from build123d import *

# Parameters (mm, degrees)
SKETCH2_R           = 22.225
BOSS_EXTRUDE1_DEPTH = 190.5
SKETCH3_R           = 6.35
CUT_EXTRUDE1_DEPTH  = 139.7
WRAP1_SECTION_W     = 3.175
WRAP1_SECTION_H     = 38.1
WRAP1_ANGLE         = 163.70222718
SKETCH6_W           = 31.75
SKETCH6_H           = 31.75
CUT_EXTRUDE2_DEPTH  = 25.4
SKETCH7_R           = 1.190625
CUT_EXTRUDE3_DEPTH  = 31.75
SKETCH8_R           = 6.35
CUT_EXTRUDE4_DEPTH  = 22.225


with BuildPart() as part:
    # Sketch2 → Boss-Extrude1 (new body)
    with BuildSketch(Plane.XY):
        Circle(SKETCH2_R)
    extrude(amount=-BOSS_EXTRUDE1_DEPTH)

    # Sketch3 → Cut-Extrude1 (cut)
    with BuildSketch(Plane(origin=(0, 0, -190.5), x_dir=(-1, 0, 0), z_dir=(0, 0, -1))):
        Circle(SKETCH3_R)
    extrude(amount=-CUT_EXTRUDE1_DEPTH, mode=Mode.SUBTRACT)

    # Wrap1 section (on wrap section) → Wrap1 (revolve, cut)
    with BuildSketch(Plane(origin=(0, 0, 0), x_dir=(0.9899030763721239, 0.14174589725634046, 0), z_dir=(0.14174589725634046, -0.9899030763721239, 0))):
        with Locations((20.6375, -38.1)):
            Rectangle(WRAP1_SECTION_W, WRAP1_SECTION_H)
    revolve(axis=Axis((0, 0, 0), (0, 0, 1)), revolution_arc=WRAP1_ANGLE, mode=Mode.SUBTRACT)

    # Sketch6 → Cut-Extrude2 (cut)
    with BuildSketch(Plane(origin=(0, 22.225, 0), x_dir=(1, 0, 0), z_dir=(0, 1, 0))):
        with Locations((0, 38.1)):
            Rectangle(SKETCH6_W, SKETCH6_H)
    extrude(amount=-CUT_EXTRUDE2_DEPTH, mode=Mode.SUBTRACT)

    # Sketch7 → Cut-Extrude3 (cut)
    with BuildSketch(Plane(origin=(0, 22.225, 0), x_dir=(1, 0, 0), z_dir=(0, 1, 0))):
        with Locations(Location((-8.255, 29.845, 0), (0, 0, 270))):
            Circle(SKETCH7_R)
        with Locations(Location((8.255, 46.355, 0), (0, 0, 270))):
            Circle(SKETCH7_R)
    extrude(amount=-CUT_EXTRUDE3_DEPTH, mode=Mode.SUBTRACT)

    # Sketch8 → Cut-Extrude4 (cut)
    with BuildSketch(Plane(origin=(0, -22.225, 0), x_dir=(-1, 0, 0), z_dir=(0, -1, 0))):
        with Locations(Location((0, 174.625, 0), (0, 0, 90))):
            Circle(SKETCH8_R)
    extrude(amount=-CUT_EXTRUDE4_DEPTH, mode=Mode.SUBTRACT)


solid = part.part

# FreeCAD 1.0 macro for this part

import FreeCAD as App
import Part
import Sketcher

V = App.Vector
Q = App.Units.Quantity

doc = App.newDocument("Part")
body = doc.addObject("PartDesign::Body", "Body")

# Sketch on XY plane
sketch1 = body.newObject("Sketcher::SketchObject", "Sketch")
sketch1.AttachmentSupport = (doc.getObject("XY_Plane"), [""])
sketch1.MapMode = "FlatFace"
sketch1.addGeometry(Part.Circle(V(0, 0, 0), V(0, 0, 1), 22), False)
sketch1.addConstraint([
    Sketcher.Constraint("Coincident", 0, 3, -1, 1),
    Sketcher.Constraint("Diameter", 0, Q("1.75 in")),
])
pad1 = body.newObject("PartDesign::Pad", "Pad")
pad1.Profile = sketch1
pad1.Length = Q("7.5 in")
pad1.Reversed = True

# Sketch on XY plane
sketch2 = body.newObject("Sketcher::SketchObject", "Sketch001")
sketch2.AttachmentSupport = (doc.getObject("XY_Plane"), [""])
sketch2.MapMode = "FlatFace"
sketch2.AttachmentOffset = App.Placement(V(0, 0, -7.5 * 25.4), App.Rotation())
sketch2.addGeometry(Part.Circle(V(0, 0, 0), V(0, 0, 1), 6), False)
sketch2.addConstraint([
    Sketcher.Constraint("Coincident", 0, 3, -1, 1),
    Sketcher.Constraint("Diameter", 0, Q("0.5 in")),
])
pocket1 = body.newObject("PartDesign::Pocket", "Pocket")
pocket1.Profile = sketch2
pocket1.Length = Q("5.5 in")
pocket1.Reversed = True

# Sketch on an angled plane
sketch3 = body.newObject("Sketcher::SketchObject", "Sketch002")
sketch3.Placement = App.Placement(V(0, 0, 0), App.Rotation(V(0.989903076, 0.141745897, 0), V(0, 0, 0.999999999), V(0.141745897, -0.989903076, 0), "ZXY"))
sketch3.addGeometry([
    Part.LineSegment(V(19, -19, 0), V(19, -57.1, 0)),
    Part.LineSegment(V(19, -57.1, 0), V(22.2, -57.1, 0)),
    Part.LineSegment(V(22.2, -57.1, 0), V(22.2, -19, 0)),
    Part.LineSegment(V(22.2, -19, 0), V(19, -19, 0)),
], False)
sketch3.addConstraint([
    Sketcher.Constraint("Coincident", 0, 2, 1, 1),
    Sketcher.Constraint("Coincident", 1, 2, 2, 1),
    Sketcher.Constraint("Coincident", 2, 2, 3, 1),
    Sketcher.Constraint("Coincident", 3, 2, 0, 1),
    Sketcher.Constraint("Vertical", 0),
    Sketcher.Constraint("Horizontal", 1),
    Sketcher.Constraint("Vertical", 2),
    Sketcher.Constraint("Horizontal", 3),
    Sketcher.Constraint("DistanceY", 0, 2, 0, 1, Q("1.5 in")),
    Sketcher.Constraint("DistanceX", 1, 1, 1, 2, Q("0.125 in")),
    Sketcher.Constraint("DistanceX", -1, 1, 0, 2, Q("0.75 in")),
    Sketcher.Constraint("DistanceY", 0, 2, -1, 1, Q("2.25 in")),
])
groove = body.newObject("PartDesign::Groove", "Groove")
groove.Profile = sketch3
groove.ReferenceAxis = (sketch3, ["V_Axis"])
groove.Angle = 163.702227

# Sketch on XZ plane
sketch4 = body.newObject("Sketcher::SketchObject", "Sketch003")
sketch4.AttachmentSupport = (doc.getObject("XZ_Plane"), [""])
sketch4.MapMode = "FlatFace"
sketch4.AttachmentOffset = App.Placement(V(0, 0, -0.875 * 25.4), App.Rotation())
sketch4.addGeometry([
    Part.LineSegment(V(-16, -54, 0), V(-16, -22, 0)),
    Part.LineSegment(V(-16, -22, 0), V(16, -22, 0)),
    Part.LineSegment(V(16, -22, 0), V(16, -54, 0)),
    Part.LineSegment(V(16, -54, 0), V(-16, -54, 0)),
], False)
sketch4.addConstraint([
    Sketcher.Constraint("Coincident", 0, 2, 1, 1),
    Sketcher.Constraint("Coincident", 1, 2, 2, 1),
    Sketcher.Constraint("Coincident", 2, 2, 3, 1),
    Sketcher.Constraint("Coincident", 3, 2, 0, 1),
    Sketcher.Constraint("Vertical", 0),
    Sketcher.Constraint("Horizontal", 1),
    Sketcher.Constraint("Vertical", 2),
    Sketcher.Constraint("Horizontal", 3),
    Sketcher.Constraint("Equal", 3, 0),
    Sketcher.Constraint("DistanceX", 1, 1, 1, 2, Q("1.25 in")),
    Sketcher.Constraint("DistanceX", 0, 2, -1, 1, Q("0.625 in")),
    Sketcher.Constraint("DistanceY", 0, 2, -1, 1, Q("0.875 in")),
])
pocket2 = body.newObject("PartDesign::Pocket", "Pocket001")
pocket2.Profile = sketch4
pocket2.Length = Q("1 in")
pocket2.Reversed = True

# Sketch on XZ plane
sketch5 = body.newObject("Sketcher::SketchObject", "Sketch004")
sketch5.AttachmentSupport = (doc.getObject("XZ_Plane"), [""])
sketch5.MapMode = "FlatFace"
sketch5.AttachmentOffset = App.Placement(V(0, 0, -0.875 * 25.4), App.Rotation())
sketch5.addGeometry([
    Part.Circle(V(-8.3, -29.8, 0), V(0, 0, 1), 1.2),
    Part.Circle(V(8.3, -46.4, 0), V(0, 0, 1), 1.2),
], False)
sketch5.addConstraint([
    Sketcher.Constraint("Equal", 0, 1),
    Sketcher.Constraint("Diameter", 0, Q("0.09375 in")),
    Sketcher.Constraint("DistanceX", 0, 3, 1, 3, Q("0.65 in")),
    Sketcher.Constraint("DistanceY", 1, 3, 0, 3, Q("0.65 in")),
    Sketcher.Constraint("DistanceX", 0, 3, -1, 1, Q("0.325 in")),
    Sketcher.Constraint("DistanceY", 0, 3, -1, 1, Q("1.175 in")),
])
pocket3 = body.newObject("PartDesign::Pocket", "Pocket002")
pocket3.Profile = sketch5
pocket3.Length = Q("1.25 in")
pocket3.Reversed = True

# Sketch on XZ plane
sketch6 = body.newObject("Sketcher::SketchObject", "Sketch005")
sketch6.AttachmentSupport = (doc.getObject("XZ_Plane"), [""])
sketch6.MapMode = "FlatFace"
sketch6.AttachmentOffset = App.Placement(V(0, 0, 0.875 * 25.4), App.Rotation())
sketch6.addGeometry(Part.Circle(V(0, -175, 0), V(0, 0, 1), 6), False)
sketch6.addConstraint([
    Sketcher.Constraint("PointOnObject", 0, 3, -2),
    Sketcher.Constraint("Diameter", 0, Q("0.5 in")),
    Sketcher.Constraint("DistanceY", 0, 3, -1, 1, Q("6.875 in")),
])
pocket4 = body.newObject("PartDesign::Pocket", "Pocket003")
pocket4.Profile = sketch6
pocket4.Length = Q("0.875 in")

doc.recompute()
